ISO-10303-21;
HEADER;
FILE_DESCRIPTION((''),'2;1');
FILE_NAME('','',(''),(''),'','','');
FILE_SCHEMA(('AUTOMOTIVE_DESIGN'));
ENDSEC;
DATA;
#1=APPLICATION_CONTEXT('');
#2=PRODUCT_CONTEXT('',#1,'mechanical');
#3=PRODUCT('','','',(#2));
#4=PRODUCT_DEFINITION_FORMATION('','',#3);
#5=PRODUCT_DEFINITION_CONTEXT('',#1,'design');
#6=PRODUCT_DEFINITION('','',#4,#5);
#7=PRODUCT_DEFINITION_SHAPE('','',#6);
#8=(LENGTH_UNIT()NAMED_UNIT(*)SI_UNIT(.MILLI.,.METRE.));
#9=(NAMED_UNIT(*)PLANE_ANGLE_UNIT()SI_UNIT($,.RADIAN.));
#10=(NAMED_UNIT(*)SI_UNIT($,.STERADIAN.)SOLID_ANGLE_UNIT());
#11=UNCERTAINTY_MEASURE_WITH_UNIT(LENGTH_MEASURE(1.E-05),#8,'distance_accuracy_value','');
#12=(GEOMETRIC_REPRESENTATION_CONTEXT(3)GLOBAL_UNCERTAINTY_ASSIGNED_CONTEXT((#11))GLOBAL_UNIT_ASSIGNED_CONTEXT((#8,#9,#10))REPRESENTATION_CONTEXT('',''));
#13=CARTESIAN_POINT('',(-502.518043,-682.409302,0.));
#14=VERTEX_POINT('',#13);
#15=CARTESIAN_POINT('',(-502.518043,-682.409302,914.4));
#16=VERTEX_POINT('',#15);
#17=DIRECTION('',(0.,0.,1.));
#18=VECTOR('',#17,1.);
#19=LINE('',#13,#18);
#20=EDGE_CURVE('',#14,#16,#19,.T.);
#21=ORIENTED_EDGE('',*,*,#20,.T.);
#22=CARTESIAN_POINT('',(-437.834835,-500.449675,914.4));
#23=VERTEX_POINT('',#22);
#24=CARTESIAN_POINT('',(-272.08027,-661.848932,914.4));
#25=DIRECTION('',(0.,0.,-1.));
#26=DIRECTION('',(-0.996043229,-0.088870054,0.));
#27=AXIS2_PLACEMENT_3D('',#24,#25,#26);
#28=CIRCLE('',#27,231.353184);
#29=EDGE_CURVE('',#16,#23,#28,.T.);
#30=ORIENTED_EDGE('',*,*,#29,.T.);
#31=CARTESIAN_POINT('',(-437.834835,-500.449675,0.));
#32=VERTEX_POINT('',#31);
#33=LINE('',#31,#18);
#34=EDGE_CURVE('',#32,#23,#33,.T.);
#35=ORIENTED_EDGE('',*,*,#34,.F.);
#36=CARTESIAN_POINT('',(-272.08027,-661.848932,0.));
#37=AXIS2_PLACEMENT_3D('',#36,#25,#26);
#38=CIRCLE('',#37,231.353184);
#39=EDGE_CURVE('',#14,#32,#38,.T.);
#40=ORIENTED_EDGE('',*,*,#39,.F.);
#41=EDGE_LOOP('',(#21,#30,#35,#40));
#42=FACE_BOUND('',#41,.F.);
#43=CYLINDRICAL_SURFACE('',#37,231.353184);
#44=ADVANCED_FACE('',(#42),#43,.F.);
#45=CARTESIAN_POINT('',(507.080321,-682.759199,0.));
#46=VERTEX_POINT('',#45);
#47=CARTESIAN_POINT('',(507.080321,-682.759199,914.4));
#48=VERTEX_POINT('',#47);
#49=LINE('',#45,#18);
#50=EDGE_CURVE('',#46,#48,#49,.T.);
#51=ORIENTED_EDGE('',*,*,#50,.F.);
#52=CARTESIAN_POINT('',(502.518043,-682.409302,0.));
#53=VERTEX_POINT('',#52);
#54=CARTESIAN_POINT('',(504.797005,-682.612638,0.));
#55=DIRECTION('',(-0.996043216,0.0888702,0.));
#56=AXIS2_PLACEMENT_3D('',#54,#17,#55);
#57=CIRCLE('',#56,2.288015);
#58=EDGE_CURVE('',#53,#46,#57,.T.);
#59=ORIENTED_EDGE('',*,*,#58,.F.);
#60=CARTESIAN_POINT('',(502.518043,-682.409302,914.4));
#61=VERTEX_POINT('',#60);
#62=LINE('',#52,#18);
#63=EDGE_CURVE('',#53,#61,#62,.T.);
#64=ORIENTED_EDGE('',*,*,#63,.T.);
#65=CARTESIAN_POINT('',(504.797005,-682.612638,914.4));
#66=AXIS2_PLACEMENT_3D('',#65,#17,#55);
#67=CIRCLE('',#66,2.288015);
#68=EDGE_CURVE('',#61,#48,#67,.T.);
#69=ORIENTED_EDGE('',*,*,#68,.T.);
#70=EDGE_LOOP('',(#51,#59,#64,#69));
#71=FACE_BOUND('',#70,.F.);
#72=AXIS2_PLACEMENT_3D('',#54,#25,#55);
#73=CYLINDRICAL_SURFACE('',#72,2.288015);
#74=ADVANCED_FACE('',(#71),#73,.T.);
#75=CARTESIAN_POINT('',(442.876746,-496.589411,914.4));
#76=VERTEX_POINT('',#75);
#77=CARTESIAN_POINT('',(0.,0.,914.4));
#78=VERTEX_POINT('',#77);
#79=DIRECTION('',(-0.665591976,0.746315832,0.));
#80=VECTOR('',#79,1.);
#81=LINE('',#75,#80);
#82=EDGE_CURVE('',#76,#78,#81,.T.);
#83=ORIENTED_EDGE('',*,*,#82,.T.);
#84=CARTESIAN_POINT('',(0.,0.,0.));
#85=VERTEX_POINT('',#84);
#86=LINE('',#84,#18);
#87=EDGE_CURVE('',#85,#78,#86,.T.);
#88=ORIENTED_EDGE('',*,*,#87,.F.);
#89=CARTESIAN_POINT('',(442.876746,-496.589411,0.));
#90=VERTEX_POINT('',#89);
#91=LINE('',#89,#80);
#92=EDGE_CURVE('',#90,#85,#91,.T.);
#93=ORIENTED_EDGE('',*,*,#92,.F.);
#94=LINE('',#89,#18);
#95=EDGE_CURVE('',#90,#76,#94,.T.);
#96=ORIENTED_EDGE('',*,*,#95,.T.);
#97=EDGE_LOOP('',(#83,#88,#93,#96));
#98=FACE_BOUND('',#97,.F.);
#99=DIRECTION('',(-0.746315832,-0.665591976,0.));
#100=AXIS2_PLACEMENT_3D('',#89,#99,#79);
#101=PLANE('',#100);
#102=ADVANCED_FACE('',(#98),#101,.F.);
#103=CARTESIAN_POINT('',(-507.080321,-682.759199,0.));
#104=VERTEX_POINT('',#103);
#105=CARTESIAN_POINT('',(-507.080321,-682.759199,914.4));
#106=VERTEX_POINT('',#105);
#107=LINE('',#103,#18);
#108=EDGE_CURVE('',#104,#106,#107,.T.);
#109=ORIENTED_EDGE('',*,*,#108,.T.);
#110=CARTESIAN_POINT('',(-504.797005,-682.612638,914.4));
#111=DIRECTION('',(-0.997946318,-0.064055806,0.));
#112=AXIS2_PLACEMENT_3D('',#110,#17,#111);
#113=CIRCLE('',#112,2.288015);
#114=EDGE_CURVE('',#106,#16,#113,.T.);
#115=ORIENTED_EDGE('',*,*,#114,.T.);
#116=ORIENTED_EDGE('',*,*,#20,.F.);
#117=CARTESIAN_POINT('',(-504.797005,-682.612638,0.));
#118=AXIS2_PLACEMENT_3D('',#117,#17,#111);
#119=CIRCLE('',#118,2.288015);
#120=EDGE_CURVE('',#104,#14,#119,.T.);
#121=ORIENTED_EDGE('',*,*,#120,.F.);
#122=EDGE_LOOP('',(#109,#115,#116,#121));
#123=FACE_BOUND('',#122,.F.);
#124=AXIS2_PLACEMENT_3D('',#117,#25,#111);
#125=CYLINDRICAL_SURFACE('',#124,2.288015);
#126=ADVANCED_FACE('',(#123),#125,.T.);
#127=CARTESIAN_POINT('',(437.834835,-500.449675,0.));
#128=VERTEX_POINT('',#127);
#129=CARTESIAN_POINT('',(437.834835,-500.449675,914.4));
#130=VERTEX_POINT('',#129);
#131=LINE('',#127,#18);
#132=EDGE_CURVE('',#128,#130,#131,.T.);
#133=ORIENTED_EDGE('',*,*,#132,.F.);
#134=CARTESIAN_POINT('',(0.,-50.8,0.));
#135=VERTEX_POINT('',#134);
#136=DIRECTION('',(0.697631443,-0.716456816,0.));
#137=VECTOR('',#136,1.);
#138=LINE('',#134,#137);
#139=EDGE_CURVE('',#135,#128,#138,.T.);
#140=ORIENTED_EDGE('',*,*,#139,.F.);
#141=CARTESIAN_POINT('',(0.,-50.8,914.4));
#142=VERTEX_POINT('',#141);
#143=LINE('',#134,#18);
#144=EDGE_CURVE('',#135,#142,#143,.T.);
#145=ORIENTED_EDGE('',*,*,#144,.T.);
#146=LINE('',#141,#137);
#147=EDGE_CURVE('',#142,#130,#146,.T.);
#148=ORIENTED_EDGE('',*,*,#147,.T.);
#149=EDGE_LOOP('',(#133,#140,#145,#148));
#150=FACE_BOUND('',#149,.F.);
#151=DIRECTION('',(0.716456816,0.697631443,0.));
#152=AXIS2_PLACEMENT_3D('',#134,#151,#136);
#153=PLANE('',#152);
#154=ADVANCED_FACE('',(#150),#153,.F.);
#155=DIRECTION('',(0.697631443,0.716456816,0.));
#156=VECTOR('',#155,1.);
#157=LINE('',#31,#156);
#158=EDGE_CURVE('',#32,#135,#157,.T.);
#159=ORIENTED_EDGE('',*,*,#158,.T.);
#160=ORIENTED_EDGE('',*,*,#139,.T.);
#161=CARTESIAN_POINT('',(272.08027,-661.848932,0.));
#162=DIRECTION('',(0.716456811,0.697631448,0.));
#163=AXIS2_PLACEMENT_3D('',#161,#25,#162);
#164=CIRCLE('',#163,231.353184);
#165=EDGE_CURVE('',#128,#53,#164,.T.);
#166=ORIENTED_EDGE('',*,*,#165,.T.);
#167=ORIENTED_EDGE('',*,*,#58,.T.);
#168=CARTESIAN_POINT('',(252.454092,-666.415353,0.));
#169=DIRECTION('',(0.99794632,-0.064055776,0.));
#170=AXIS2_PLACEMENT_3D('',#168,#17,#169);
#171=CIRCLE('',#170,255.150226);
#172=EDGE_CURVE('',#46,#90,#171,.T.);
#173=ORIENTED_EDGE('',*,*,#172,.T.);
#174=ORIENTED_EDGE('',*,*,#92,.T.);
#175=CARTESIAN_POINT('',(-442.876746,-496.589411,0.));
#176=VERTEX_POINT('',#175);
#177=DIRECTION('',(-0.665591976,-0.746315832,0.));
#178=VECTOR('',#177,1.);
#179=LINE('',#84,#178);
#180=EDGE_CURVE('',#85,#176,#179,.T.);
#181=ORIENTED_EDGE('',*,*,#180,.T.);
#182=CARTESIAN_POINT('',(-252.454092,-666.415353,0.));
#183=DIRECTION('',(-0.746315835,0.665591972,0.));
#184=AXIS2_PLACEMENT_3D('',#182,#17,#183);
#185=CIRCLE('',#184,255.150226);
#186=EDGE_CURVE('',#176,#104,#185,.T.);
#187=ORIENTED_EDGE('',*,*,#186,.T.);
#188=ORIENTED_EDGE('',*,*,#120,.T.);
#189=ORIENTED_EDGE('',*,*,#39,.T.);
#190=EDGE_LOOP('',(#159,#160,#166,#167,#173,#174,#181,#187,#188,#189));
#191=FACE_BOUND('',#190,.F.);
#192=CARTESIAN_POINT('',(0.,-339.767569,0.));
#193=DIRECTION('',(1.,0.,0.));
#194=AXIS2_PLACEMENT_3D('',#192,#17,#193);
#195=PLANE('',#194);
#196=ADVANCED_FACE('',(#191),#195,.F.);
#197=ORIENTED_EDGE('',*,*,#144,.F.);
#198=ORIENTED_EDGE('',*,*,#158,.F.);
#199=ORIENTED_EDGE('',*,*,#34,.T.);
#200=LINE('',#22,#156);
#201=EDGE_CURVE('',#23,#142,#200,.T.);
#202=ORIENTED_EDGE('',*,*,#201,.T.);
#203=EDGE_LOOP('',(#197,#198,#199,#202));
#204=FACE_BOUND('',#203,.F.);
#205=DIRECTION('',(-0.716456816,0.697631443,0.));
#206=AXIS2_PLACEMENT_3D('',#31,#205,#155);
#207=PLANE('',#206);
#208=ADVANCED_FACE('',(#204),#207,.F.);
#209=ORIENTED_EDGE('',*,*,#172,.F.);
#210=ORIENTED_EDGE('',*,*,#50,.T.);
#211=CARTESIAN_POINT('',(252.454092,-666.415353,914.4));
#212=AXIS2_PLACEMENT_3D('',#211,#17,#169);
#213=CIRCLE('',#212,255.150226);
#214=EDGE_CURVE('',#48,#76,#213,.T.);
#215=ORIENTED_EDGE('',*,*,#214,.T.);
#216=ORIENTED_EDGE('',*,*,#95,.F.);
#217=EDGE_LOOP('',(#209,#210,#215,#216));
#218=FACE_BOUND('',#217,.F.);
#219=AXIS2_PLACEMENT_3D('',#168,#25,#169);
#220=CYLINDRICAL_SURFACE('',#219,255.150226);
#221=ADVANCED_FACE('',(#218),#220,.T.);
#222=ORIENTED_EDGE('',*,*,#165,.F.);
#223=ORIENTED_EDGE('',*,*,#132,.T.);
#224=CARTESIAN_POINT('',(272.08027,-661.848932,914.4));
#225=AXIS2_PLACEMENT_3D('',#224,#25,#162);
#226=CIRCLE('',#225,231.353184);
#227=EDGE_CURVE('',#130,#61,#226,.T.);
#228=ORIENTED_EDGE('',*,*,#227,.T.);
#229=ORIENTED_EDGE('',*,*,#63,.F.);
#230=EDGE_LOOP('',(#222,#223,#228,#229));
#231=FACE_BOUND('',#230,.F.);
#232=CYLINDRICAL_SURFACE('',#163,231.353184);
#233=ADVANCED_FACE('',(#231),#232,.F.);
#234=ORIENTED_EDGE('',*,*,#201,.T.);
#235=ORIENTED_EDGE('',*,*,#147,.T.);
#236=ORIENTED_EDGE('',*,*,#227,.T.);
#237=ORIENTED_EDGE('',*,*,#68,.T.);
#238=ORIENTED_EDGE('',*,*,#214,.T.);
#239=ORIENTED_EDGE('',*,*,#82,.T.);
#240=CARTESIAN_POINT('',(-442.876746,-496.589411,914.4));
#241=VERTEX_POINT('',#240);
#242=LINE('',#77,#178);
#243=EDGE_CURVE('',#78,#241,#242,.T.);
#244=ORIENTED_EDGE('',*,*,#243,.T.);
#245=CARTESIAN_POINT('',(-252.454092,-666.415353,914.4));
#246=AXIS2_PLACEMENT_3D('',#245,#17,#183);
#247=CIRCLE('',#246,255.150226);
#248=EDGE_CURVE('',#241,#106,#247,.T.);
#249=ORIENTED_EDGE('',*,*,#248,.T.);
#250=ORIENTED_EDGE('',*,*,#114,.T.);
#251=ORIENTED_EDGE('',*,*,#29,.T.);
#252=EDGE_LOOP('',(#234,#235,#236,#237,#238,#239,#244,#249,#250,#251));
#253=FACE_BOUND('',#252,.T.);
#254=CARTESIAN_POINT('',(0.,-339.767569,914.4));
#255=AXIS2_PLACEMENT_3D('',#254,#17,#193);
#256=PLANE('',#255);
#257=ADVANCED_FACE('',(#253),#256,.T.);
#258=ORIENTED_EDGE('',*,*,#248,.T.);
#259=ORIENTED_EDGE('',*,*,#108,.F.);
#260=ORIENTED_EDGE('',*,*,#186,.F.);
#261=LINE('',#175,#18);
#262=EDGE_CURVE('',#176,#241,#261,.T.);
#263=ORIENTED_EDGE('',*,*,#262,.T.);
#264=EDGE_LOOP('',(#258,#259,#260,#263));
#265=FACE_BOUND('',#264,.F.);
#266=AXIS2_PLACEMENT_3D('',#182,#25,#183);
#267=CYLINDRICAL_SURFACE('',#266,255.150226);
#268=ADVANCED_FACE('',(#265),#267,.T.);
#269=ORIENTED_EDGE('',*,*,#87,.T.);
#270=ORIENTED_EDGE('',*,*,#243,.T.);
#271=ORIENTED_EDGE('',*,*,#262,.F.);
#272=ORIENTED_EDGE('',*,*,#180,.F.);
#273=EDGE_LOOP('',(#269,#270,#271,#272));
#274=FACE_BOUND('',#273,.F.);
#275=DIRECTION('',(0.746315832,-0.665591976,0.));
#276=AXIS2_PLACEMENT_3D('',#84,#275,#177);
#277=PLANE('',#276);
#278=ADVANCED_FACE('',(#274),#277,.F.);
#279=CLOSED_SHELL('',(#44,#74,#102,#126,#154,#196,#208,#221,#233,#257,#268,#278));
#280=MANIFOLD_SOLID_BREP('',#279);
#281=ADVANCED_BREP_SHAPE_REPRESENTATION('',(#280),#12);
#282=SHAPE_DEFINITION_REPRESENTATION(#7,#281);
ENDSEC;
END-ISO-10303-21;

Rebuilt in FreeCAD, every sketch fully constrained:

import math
import FreeCAD as App
import Part
import Sketcher
Q = App.Units.Quantity

doc = App.newDocument("Part")
body = doc.addObject("PartDesign::Body", "Body")

sketch1 = body.newObject("Sketcher::SketchObject", "Sketch")
sketch1.AttachmentSupport = (doc.getObject("XY_Plane"), [""])
sketch1.MapMode = "FlatFace"
sketch1.addGeometry([
    Part.LineSegment(App.Vector(442.876746, -496.589411, 0), App.Vector(0, 0, 0)),
    Part.LineSegment(App.Vector(0, 0, 0), App.Vector(-442.876746, -496.589411, 0)),
    Part.ArcOfCircle(Part.Circle(App.Vector(-252.454092, -666.415353, 0), App.Vector(0, 0, 1), 255.150226), math.radians(138.272244), math.radians(183.67264)),
    Part.ArcOfCircle(Part.Circle(App.Vector(-504.797005, -682.612638, 0), App.Vector(0, 0, 1), 2.288015), math.radians(-176.327358), math.radians(5.098614)),
    Part.ArcOfCircle(Part.Circle(App.Vector(-272.08027, -661.848932, 0), App.Vector(0, 0, 1), 231.353184), math.radians(135.762718), math.radians(185.098605)),
    Part.LineSegment(App.Vector(-437.834835, -500.449675, 0), App.Vector(0, -50.8, 0)),
    Part.LineSegment(App.Vector(0, -50.8, 0), App.Vector(437.834835, -500.449675, 0)),
    Part.ArcOfCircle(Part.Circle(App.Vector(272.08027, -661.848932, 0), App.Vector(0, 0, 1), 231.353184), math.radians(-5.098605), math.radians(44.237282)),
    Part.ArcOfCircle(Part.Circle(App.Vector(504.797005, -682.612638, 0), App.Vector(0, 0, 1), 2.288015), math.radians(174.901386), math.radians(356.327358)),
    Part.ArcOfCircle(Part.Circle(App.Vector(252.454092, -666.415353, 0), App.Vector(0, 0, 1), 255.150226), math.radians(-3.67264), math.radians(41.727756)),
], False)
sketch1.addConstraint([
    Sketcher.Constraint("Coincident", 0, 2, 1, 1),
    Sketcher.Constraint("Tangent", 1, 2, 2, 1),
    Sketcher.Constraint("Tangent", 2, 2, 3, 1),
    Sketcher.Constraint("Tangent", 3, 2, 4, 2),
    Sketcher.Constraint("Tangent", 4, 1, 5, 1),
    Sketcher.Constraint("Coincident", 5, 2, 6, 1),
    Sketcher.Constraint("Tangent", 6, 2, 7, 2),
    Sketcher.Constraint("Tangent", 7, 1, 8, 1),
    Sketcher.Constraint("Tangent", 8, 2, 9, 1),
    Sketcher.Constraint("Tangent", 9, 2, 0, 1),
    Sketcher.Constraint("Coincident", 0, 2, -1, 1),
    Sketcher.Constraint("Equal", 4, 7),
    Sketcher.Constraint("Equal", 3, 8),
    Sketcher.Constraint("Equal", 2, 9),
    Sketcher.Constraint("Symmetric", 4, 3, 7, 3, -2),
    Sketcher.Constraint("Symmetric", 2, 3, 9, 3, -2),
    Sketcher.Constraint("PointOnObject", 5, 2, -2),
    Sketcher.Constraint("DistanceY", 5, 2, -1, 1, Q("2 in")),
    Sketcher.Constraint("Radius", 2, Q("255.150226 mm")),
    Sketcher.Constraint("Radius", 3, Q("2.288015 mm")),
    Sketcher.Constraint("Radius", 4, Q("231.353184 mm")),
    Sketcher.Constraint("DistanceX", 2, 2, 1, 2, Q("2.5276998 in")),
    Sketcher.Constraint("DistanceY", 2, 2, -1, 1, Q("682.759199 mm")),
    Sketcher.Constraint("DistanceY", 3, 2, -1, 1, Q("682.409302 mm")),
    Sketcher.Constraint("Distance", 0, Q("665.387748 mm")),
])
pad1 = body.newObject("PartDesign::Pad", "Pad")
pad1.Profile = sketch1
pad1.Length = Q("36 in")

doc.recompute()
